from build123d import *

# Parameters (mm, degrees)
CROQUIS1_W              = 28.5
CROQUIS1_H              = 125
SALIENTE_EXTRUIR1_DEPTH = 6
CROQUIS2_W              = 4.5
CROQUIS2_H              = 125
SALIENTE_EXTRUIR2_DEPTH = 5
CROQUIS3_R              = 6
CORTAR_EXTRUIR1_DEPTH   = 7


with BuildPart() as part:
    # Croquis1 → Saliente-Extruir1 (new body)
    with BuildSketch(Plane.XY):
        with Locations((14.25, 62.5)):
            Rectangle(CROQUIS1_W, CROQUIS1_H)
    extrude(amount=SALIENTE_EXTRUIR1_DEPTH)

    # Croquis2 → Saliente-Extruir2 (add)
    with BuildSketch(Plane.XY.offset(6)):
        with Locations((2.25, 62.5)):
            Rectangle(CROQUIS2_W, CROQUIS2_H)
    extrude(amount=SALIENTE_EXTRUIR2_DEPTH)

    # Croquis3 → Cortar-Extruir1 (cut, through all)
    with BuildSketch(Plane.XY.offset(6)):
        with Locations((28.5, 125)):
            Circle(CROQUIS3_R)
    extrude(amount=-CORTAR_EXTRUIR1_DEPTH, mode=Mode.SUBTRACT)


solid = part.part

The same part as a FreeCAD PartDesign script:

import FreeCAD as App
import Part
import Sketcher
Q = App.Units.Quantity


def add_polygon(sketch, points):
    """Adds a closed chain of lines whose ends are joined by coincident constraints."""
    first, n = sketch.GeometryCount, len(points)
    for a, b in zip(points, points[1:] + points[:1]):
        sketch.addGeometry(Part.LineSegment(App.Vector(*a, 0), App.Vector(*b, 0)), False)
    for i in range(n):
        sketch.addConstraint(Sketcher.Constraint("Coincident", first + i, 2, first + (i + 1) % n, 1))

doc = App.newDocument("Part")
body = doc.addObject("PartDesign::Body", "Body")

sketch1 = body.newObject("Sketcher::SketchObject", "Sketch")
sketch1.AttachmentSupport = (doc.getObject("XY_Plane"), [""])
sketch1.MapMode = "FlatFace"
add_polygon(sketch1, [(0, 125), (0, 0), (28.5, 0), (28.5, 125)])
sketch1.addConstraint([
    Sketcher.Constraint("Vertical", 0),
    Sketcher.Constraint("Horizontal", 1),
    Sketcher.Constraint("Vertical", 2),
    Sketcher.Constraint("Horizontal", 3),
    Sketcher.Constraint("Coincident", 0, 2, -1, 1),
    Sketcher.Constraint("DistanceY", 0, 2, 0, 1, Q("125 mm")),
    Sketcher.Constraint("DistanceX", 1, 1, 1, 2, Q("28.5 mm")),
])
pad1 = body.newObject("PartDesign::Pad", "Pad")
pad1.Profile = sketch1
pad1.Length = 6

sketch2 = body.newObject("Sketcher::SketchObject", "Sketch001")
sketch2.AttachmentSupport = (doc.getObject("XY_Plane"), [""])
sketch2.MapMode = "FlatFace"
sketch2.AttachmentOffset = App.Placement(App.Vector(0, 0, 6), App.Rotation())
add_polygon(sketch2, [(0, 125), (0, 0), (4.5, 0), (4.5, 125)])
sketch2.addConstraint([
    Sketcher.Constraint("Vertical", 0),
    Sketcher.Constraint("Horizontal", 1),
    Sketcher.Constraint("Vertical", 2),
    Sketcher.Constraint("Horizontal", 3),
    Sketcher.Constraint("Coincident", 0, 2, -1, 1),
    Sketcher.Constraint("DistanceY", 0, 2, 0, 1, Q("125 mm")),
    Sketcher.Constraint("DistanceX", 1, 1, 1, 2, Q("4.5 mm")),
])
pad2 = body.newObject("PartDesign::Pad", "Pad001")
pad2.Profile = sketch2
pad2.Length = 5

sketch3 = body.newObject("Sketcher::SketchObject", "Sketch002")
sketch3.AttachmentSupport = (doc.getObject("XY_Plane"), [""])
sketch3.MapMode = "FlatFace"
sketch3.AttachmentOffset = App.Placement(App.Vector(0, 0, 6), App.Rotation())
sketch3.addGeometry(Part.Circle(App.Vector(28.5, 125, 0), App.Vector(0, 0, 1), 6), False)
sketch3.addConstraint([
    Sketcher.Constraint("Diameter", 0, Q("12 mm")),
    Sketcher.Constraint("DistanceY", -1, 1, 0, 3, Q("125 mm")),
    Sketcher.Constraint("DistanceX", -1, 1, 0, 3, Q("28.5 mm")),
])
pocket1 = body.newObject("PartDesign::Pocket", "Pocket")
pocket1.Profile = sketch3
pocket1.Type = "ThroughAll"

doc.recompute()
